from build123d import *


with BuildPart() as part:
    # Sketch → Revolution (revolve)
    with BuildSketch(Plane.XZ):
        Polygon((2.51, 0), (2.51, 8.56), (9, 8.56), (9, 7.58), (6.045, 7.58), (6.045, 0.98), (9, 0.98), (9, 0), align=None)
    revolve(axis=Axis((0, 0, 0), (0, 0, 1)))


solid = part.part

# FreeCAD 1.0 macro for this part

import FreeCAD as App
import Part
import Sketcher


def add_polygon(sketch, points):
    """Adds a closed chain of lines whose ends are joined by coincident constraints."""
    first, n = sketch.GeometryCount, len(points)
    for a, b in zip(points, points[1:] + points[:1]):
        sketch.addGeometry(Part.LineSegment(App.Vector(*a, 0), App.Vector(*b, 0)), False)
    for i in range(n):
        sketch.addConstraint(Sketcher.Constraint("Coincident", first + i, 2, first + (i + 1) % n, 1))

doc = App.newDocument("Part")
params = doc.addObject("Spreadsheet::Sheet", "Params")
for row, (alias, value) in enumerate([
    ("sketch1_height", "6.6 mm"),
    ("sketch1_width", "6.49 mm"),
    ("sketch1_height2", "8.56 mm"),
    ("revolution_angle", "360 deg"),
], start=1):
    params.set(f"A{row}", alias)
    params.set(f"B{row}", "=" + value)
    params.setAlias(f"B{row}", alias)

body = doc.addObject("PartDesign::Body", "Body")

# Sketch on XZ plane
sketch1 = body.newObject("Sketcher::SketchObject", "Sketch")
sketch1.AttachmentSupport = (doc.getObject("XZ_Plane"), [""])
sketch1.MapMode = "FlatFace"
add_polygon(sketch1, [(2.51, 8.56), (2.51, 0), (9, 0), (9, 0.98), (6.045, 0.98), (6.045, 7.58), (9, 7.58), (9, 8.56)])  # lines 0-7
sketch1.addConstraint([
    Sketcher.Constraint("Vertical", 0),
    Sketcher.Constraint("Horizontal", 1),
    Sketcher.Constraint("Vertical", 2),
    Sketcher.Constraint("Horizontal", 3),
    Sketcher.Constraint("Vertical", 4),
    Sketcher.Constraint("Horizontal", 5),
    Sketcher.Constraint("Vertical", 6),
    Sketcher.Constraint("Horizontal", 7),
    Sketcher.Constraint("PointOnObject", 0, 2, -1),
    Sketcher.Constraint("Vertical", 2, 2, 5, 2),
    Sketcher.Constraint("Equal", 2, 6),
    Sketcher.Constraint("DistanceY", 4, 1, 4, 2, 6.6),
    Sketcher.Constraint("DistanceX", -1, 1, 1, 2, 9.0),
    Sketcher.Constraint("DistanceX", 1, 1, 1, 2, 6.49),
    Sketcher.Constraint("DistanceY", 0, 2, 0, 1, 8.56),
    Sketcher.Constraint("DistanceX", 3, 2, 3, 1, 2.955),
])
sketch1.setExpression("Constraints[19]", "Params.sketch1_height")
sketch1.setExpression("Constraints[21]", "Params.sketch1_width")
sketch1.setExpression("Constraints[22]", "Params.sketch1_height2")
revolution = body.newObject("PartDesign::Revolution", "Revolution")
revolution.Profile = sketch1
revolution.ReferenceAxis = (sketch1, ["V_Axis"])
revolution.setExpression("Angle", "Params.revolution_angle")

doc.recompute()
